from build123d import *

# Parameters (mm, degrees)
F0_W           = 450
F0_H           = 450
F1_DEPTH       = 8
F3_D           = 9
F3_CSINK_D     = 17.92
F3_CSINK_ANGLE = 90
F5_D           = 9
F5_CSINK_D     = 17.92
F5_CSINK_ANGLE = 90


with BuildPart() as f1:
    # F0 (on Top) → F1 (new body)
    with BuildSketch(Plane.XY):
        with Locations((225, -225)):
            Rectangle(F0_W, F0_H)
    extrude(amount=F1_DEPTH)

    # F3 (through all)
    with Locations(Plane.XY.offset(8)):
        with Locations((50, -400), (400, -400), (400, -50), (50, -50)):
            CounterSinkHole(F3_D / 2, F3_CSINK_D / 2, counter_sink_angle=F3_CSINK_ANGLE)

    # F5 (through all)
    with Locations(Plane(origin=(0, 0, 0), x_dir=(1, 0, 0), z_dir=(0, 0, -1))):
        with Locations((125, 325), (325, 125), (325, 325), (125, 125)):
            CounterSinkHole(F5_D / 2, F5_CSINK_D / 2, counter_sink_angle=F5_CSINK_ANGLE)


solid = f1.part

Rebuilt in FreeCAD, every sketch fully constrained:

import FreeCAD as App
import Part
import Sketcher

doc = App.newDocument("Part")
body = doc.addObject("PartDesign::Body", "Body")

sketch1 = body.newObject("Sketcher::SketchObject", "Sketch")
sketch1.AttachmentSupport = (doc.getObject("XY_Plane"), [""])
sketch1.MapMode = "FlatFace"
sketch1.addGeometry(Part.LineSegment(App.Vector(0, 0, 0), App.Vector(0, -450, 0)), False)
sketch1.addGeometry(Part.LineSegment(App.Vector(0, -450, 0), App.Vector(450, -450, 0)), False)
sketch1.addGeometry(Part.LineSegment(App.Vector(450, -450, 0), App.Vector(450, 0, 0)), False)
sketch1.addGeometry(Part.LineSegment(App.Vector(450, 0, 0), App.Vector(0, 0, 0)), False)
sketch1.addConstraint(Sketcher.Constraint("Coincident", 0, 2, 1, 1))
sketch1.addConstraint(Sketcher.Constraint("Coincident", 1, 2, 2, 1))
sketch1.addConstraint(Sketcher.Constraint("Coincident", 2, 2, 3, 1))
sketch1.addConstraint(Sketcher.Constraint("Coincident", 3, 2, 0, 1))
sketch1.addConstraint(Sketcher.Constraint("Vertical", 0))
sketch1.addConstraint(Sketcher.Constraint("Horizontal", 1))
sketch1.addConstraint(Sketcher.Constraint("Vertical", 2))
sketch1.addConstraint(Sketcher.Constraint("Horizontal", 3))
sketch1.addConstraint(Sketcher.Constraint("Coincident", 3, 2, -1, 1))
sketch1.addConstraint(Sketcher.Constraint("Equal", 3, 0))
sketch1.addConstraint(Sketcher.Constraint("DistanceX", 1, 1, 1, 2, 450.0))
pad1 = body.newObject("PartDesign::Pad", "Pad")
pad1.Profile = sketch1
pad1.Length = 8

sketch2 = body.newObject("Sketcher::SketchObject", "Sketch001")
sketch2.AttachmentSupport = (doc.getObject("XY_Plane"), [""])
sketch2.MapMode = "FlatFace"
sketch2.AttachmentOffset = App.Placement(App.Vector(0, 0, 8), App.Rotation())
sketch2.addGeometry(Part.Circle(App.Vector(50, -400, 0), App.Vector(0, 0, 1), 4.5), False)
sketch2.addGeometry(Part.Circle(App.Vector(400, -400, 0), App.Vector(0, 0, 1), 4.5), False)
sketch2.addGeometry(Part.Circle(App.Vector(400, -50, 0), App.Vector(0, 0, 1), 4.5), False)
sketch2.addGeometry(Part.Circle(App.Vector(50, -50, 0), App.Vector(0, 0, 1), 4.5), False)
sketch2.addConstraint(Sketcher.Constraint("Equal", 0, 1))
sketch2.addConstraint(Sketcher.Constraint("Equal", 1, 2))
sketch2.addConstraint(Sketcher.Constraint("Equal", 2, 3))
sketch2.addConstraint(Sketcher.Constraint("Horizontal", 0, 3, 1, 3))
sketch2.addConstraint(Sketcher.Constraint("Horizontal", 2, 3, 3, 3))
sketch2.addConstraint(Sketcher.Constraint("Vertical", 1, 3, 2, 3))
sketch2.addConstraint(Sketcher.Constraint("Vertical", 0, 3, 3, 3))
sketch2.addConstraint(Sketcher.Constraint("Diameter", 0, 9.0))
sketch2.addConstraint(Sketcher.Constraint("DistanceX", -1, 1, 0, 3, 50.0))
sketch2.addConstraint(Sketcher.Constraint("DistanceY", 0, 3, -1, 1, 400.0))
sketch2.addConstraint(Sketcher.Constraint("DistanceX", -1, 1, 1, 3, 400.0))
sketch2.addConstraint(Sketcher.Constraint("DistanceY", 2, 3, -1, 1, 50.0))
doc.recompute()
hole = body.newObject("PartDesign::Hole", "Hole")
hole.Profile = sketch2
hole.ThreadType = "None"
hole.Diameter = 9
hole.DepthType = "ThroughAll"
hole.HoleCutType = "Countersink"
hole.HoleCutDiameter = 17.92
hole.HoleCutCountersinkAngle = 90

sketch3 = body.newObject("Sketcher::SketchObject", "Sketch002")
sketch3.AttachmentSupport = (doc.getObject("XY_Plane"), [""])
sketch3.MapMode = "FlatFace"
sketch3.addGeometry(Part.Circle(App.Vector(125, -325, 0), App.Vector(0, 0, 1), 4.5), False)
sketch3.addGeometry(Part.Circle(App.Vector(325, -125, 0), App.Vector(0, 0, 1), 4.5), False)
sketch3.addGeometry(Part.Circle(App.Vector(325, -325, 0), App.Vector(0, 0, 1), 4.5), False)
sketch3.addGeometry(Part.Circle(App.Vector(125, -125, 0), App.Vector(0, 0, 1), 4.5), False)
sketch3.addConstraint(Sketcher.Constraint("Equal", 0, 1))
sketch3.addConstraint(Sketcher.Constraint("Equal", 1, 2))
sketch3.addConstraint(Sketcher.Constraint("Equal", 2, 3))
sketch3.addConstraint(Sketcher.Constraint("Horizontal", 0, 3, 2, 3))
sketch3.addConstraint(Sketcher.Constraint("Horizontal", 1, 3, 3, 3))
sketch3.addConstraint(Sketcher.Constraint("Vertical", 1, 3, 2, 3))
sketch3.addConstraint(Sketcher.Constraint("Vertical", 0, 3, 3, 3))
sketch3.addConstraint(Sketcher.Constraint("Diameter", 0, 9.0))
sketch3.addConstraint(Sketcher.Constraint("DistanceX", -1, 1, 0, 3, 125.0))
sketch3.addConstraint(Sketcher.Constraint("DistanceY", 0, 3, -1, 1, 325.0))
sketch3.addConstraint(Sketcher.Constraint("DistanceX", -1, 1, 1, 3, 325.0))
sketch3.addConstraint(Sketcher.Constraint("DistanceY", 1, 3, -1, 1, 125.0))
doc.recompute()
hole2 = body.newObject("PartDesign::Hole", "Hole001")
hole2.Profile = sketch3
hole2.ThreadType = "None"
hole2.Diameter = 9
hole2.DepthType = "ThroughAll"
hole2.HoleCutType = "Countersink"
hole2.HoleCutDiameter = 17.92
hole2.HoleCutCountersinkAngle = 90
hole2.Reversed = True

doc.recompute()
